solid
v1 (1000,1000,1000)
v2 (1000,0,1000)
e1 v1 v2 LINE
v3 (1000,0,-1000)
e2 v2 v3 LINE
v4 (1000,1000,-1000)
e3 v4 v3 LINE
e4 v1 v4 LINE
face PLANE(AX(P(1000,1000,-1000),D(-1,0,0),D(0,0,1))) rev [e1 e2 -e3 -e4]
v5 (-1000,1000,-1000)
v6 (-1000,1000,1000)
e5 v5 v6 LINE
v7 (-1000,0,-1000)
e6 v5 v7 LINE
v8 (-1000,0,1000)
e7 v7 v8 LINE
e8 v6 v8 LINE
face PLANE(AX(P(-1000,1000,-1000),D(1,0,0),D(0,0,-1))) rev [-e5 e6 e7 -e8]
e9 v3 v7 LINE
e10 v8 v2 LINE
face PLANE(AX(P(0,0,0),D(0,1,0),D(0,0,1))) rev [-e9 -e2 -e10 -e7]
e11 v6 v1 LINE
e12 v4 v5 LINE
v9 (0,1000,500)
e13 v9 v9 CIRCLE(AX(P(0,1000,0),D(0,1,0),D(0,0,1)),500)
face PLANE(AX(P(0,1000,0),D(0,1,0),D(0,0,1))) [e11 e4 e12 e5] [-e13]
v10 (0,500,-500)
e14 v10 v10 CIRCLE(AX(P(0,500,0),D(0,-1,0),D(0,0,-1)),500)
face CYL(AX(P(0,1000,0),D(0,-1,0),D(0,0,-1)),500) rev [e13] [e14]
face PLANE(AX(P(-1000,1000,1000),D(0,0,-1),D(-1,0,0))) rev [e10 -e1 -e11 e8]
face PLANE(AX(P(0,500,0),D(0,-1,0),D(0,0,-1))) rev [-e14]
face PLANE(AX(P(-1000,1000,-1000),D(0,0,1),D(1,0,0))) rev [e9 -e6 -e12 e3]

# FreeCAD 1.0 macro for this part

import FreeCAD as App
import Part
import Sketcher
from FreeCAD import Vector
Q = App.Units.Quantity


def add_polygon(sketch, points):
    """Adds a closed chain of lines whose ends are joined by coincident constraints."""
    first, n = sketch.GeometryCount, len(points)
    for a, b in zip(points, points[1:] + points[:1]):
        sketch.addGeometry(Part.LineSegment(App.Vector(*a, 0), App.Vector(*b, 0)), False)
    for i in range(n):
        sketch.addConstraint(Sketcher.Constraint("Coincident", first + i, 2, first + (i + 1) % n, 1))

doc = App.newDocument("Part")
body = doc.addObject("PartDesign::Body", "Body")

sketch1 = body.newObject("Sketcher::SketchObject", "Sketch")
sketch1.AttachmentSupport = (doc.getObject("XZ_Plane"), [""])
sketch1.MapMode = "FlatFace"
add_polygon(sketch1, [(-1000, -1000), (-1000, 1000), (1000, 1000), (1000, -1000)])
sketch1.addGeometry(Part.Circle(Vector(0, 0, 0), Vector(0, 0, 1), 500), False)
sketch1.addConstraint([
    Sketcher.Constraint("Vertical", 0),
    Sketcher.Constraint("Horizontal", 1),
    Sketcher.Constraint("Vertical", 2),
    Sketcher.Constraint("Horizontal", 3),
    Sketcher.Constraint("Coincident", 4, 3, -1, 1),
    Sketcher.Constraint("Symmetric", 0, 2, 2, 2, -1, 1),
    Sketcher.Constraint("Equal", 3, 0),
    Sketcher.Constraint("Diameter", 4, Q("1000 mm")),
    Sketcher.Constraint("DistanceX", 1, 1, 1, 2, Q("2000 mm")),
])
pad1 = body.newObject("PartDesign::Pad", "Pad")
pad1.Profile = sketch1
pad1.Length = 1000
pad1.Reversed = True

sketch2 = body.newObject("Sketcher::SketchObject", "Sketch001")
sketch2.AttachmentSupport = (doc.getObject("XZ_Plane"), [""])
sketch2.MapMode = "FlatFace"
sketch2.addGeometry(Part.Circle(Vector(0, 0, 0), Vector(0, 0, 1), 500), False)
sketch2.addConstraint([
    Sketcher.Constraint("Coincident", 0, 3, -1, 1),
    Sketcher.Constraint("Diameter", 0, Q("1000 mm")),
])
pad2 = body.newObject("PartDesign::Pad", "Pad001")
pad2.Profile = sketch2
pad2.Length = 500
pad2.Reversed = True

doc.recompute()
